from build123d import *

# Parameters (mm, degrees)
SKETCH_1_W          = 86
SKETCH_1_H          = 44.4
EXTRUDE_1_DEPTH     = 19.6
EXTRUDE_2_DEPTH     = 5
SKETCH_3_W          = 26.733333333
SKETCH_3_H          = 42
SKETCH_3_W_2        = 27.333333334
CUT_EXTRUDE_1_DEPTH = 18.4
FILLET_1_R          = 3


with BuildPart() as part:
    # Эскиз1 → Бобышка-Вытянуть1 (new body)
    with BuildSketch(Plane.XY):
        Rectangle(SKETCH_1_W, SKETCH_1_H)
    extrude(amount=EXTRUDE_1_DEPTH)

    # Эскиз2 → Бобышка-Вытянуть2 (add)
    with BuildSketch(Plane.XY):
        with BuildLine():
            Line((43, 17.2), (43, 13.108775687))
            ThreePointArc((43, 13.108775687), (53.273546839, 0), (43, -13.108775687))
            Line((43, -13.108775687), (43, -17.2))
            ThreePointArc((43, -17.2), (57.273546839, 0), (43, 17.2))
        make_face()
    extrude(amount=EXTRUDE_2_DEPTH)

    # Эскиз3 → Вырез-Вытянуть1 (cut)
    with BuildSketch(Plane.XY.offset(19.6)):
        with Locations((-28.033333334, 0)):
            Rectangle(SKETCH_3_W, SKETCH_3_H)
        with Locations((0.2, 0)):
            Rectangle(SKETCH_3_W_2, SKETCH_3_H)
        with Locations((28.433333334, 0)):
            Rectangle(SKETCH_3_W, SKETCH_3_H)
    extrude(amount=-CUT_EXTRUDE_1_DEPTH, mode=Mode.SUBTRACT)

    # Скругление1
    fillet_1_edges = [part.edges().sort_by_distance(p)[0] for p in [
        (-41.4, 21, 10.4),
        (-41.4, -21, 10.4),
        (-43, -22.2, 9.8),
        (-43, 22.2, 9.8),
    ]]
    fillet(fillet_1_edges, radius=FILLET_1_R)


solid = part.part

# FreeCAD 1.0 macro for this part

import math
import FreeCAD as App
import Part
import Sketcher
from FreeCAD import Vector


def edges_at(feature, points):
    """Names of the edges that pass closest to the given points."""
    edges = feature.Shape.Edges
    near = lambda p: min(range(len(edges)), key=lambda i: edges[i].distToShape(Part.Vertex(*p))[0])
    return sorted({f"Edge{near(p) + 1}" for p in points})

doc = App.newDocument("Part")
params = doc.addObject("Spreadsheet::Sheet", "Params")
for row, (alias, value) in enumerate([
    ("sketch1_width", "86 mm"),
    ("sketch1_height", "44.4 mm"),
    ("pad1_length", "19.6 mm"),
    ("sketch2_radius", "13.5 mm"),
    ("sketch2_radius2", "17.5 mm"),
    ("pad2_length", "5 mm"),
    ("sketch3_height", "42 mm"),
    ("pocket1_length", "18.4 mm"),
    ("fillet_radius", "3 mm"),
], start=1):
    params.set(f"A{row}", alias)
    params.set(f"B{row}", "=" + value)
    params.setAlias(f"B{row}", alias)

body = doc.addObject("PartDesign::Body", "Body")

sketch1 = doc.addObject("Sketcher::SketchObject", "Sketch")
body.addObject(sketch1)
sketch1.AttachmentSupport = (doc.XY_Plane, [""])
sketch1.MapMode = "FlatFace"
sketch1.addGeometry(Part.LineSegment(Vector(-43, 22.2, 0), Vector(-43, -22.2, 0)), False)
sketch1.addGeometry(Part.LineSegment(Vector(-43, -22.2, 0), Vector(43, -22.2, 0)), False)
sketch1.addGeometry(Part.LineSegment(Vector(43, -22.2, 0), Vector(43, 22.2, 0)), False)
sketch1.addGeometry(Part.LineSegment(Vector(43, 22.2, 0), Vector(-43, 22.2, 0)), False)
sketch1.addConstraint(Sketcher.Constraint("Coincident", 0, 2, 1, 1))
sketch1.addConstraint(Sketcher.Constraint("Coincident", 1, 2, 2, 1))
sketch1.addConstraint(Sketcher.Constraint("Coincident", 2, 2, 3, 1))
sketch1.addConstraint(Sketcher.Constraint("Coincident", 3, 2, 0, 1))
sketch1.addConstraint(Sketcher.Constraint("Vertical", 0))
sketch1.addConstraint(Sketcher.Constraint("Horizontal", 1))
sketch1.addConstraint(Sketcher.Constraint("Vertical", 2))
sketch1.addConstraint(Sketcher.Constraint("Horizontal", 3))
sketch1.addConstraint(Sketcher.Constraint("Symmetric", 0, 2, 2, 2, -1, 1))
sketch1.addConstraint(Sketcher.Constraint("DistanceX", 1, 1, 1, 2, 86.0))
sketch1.addConstraint(Sketcher.Constraint("DistanceY", 0, 2, 0, 1, 44.4))
sketch1.setExpression("Constraints[9]", "Params.sketch1_width")
sketch1.setExpression("Constraints[10]", "Params.sketch1_height")
pad1 = doc.addObject("PartDesign::Pad", "Pad")
body.addObject(pad1)
pad1.Profile = sketch1
pad1.setExpression("Length", "Params.pad1_length")

sketch2 = doc.addObject("Sketcher::SketchObject", "Sketch001")
body.addObject(sketch2)
sketch2.AttachmentSupport = (doc.XY_Plane, [""])
sketch2.MapMode = "FlatFace"
sketch2.addGeometry(Part.LineSegment(Vector(43, 17.2, 0), Vector(43, 13.108776, 0)), False)
sketch2.addGeometry(Part.ArcOfCircle(Part.Circle(Vector(39.773547, 0, 0), Vector(0, 0, 1), 13.5), math.radians(-76.172678), math.radians(76.172678)), False)
sketch2.addGeometry(Part.LineSegment(Vector(43, -13.108776, 0), Vector(43, -17.2, 0)), False)
sketch2.addGeometry(Part.ArcOfCircle(Part.Circle(Vector(39.773547, 0, 0), Vector(0, 0, 1), 17.5), math.radians(-79.375668), math.radians(79.375668)), False)
sketch2.addConstraint(Sketcher.Constraint("Coincident", 0, 2, 1, 2))
sketch2.addConstraint(Sketcher.Constraint("Coincident", 1, 1, 2, 1))
sketch2.addConstraint(Sketcher.Constraint("Coincident", 2, 2, 3, 1))
sketch2.addConstraint(Sketcher.Constraint("Coincident", 3, 2, 0, 1))
sketch2.addConstraint(Sketcher.Constraint("Vertical", 0))
sketch2.addConstraint(Sketcher.Constraint("Vertical", 2))
sketch2.addConstraint(Sketcher.Constraint("Coincident", 3, 3, 1, 3))
sketch2.addConstraint(Sketcher.Constraint("Symmetric", 0, 2, 1, 1, -1))
sketch2.addConstraint(Sketcher.Constraint("Radius", 1, 13.5))
sketch2.addConstraint(Sketcher.Constraint("Radius", 3, 17.5))
sketch2.addConstraint(Sketcher.Constraint("DistanceX", -1, 1, 0, 2, 43.0))
sketch2.addConstraint(Sketcher.Constraint("DistanceY", 2, 2, -1, 1, 17.2))
sketch2.setExpression("Constraints[8]", "Params.sketch2_radius")
sketch2.setExpression("Constraints[9]", "Params.sketch2_radius2")
pad2 = doc.addObject("PartDesign::Pad", "Pad001")
body.addObject(pad2)
pad2.Profile = sketch2
pad2.setExpression("Length", "Params.pad2_length")

sketch3 = doc.addObject("Sketcher::SketchObject", "Sketch002")
body.addObject(sketch3)
sketch3.AttachmentSupport = (doc.XY_Plane, [""])
sketch3.MapMode = "FlatFace"
sketch3.AttachmentOffset = App.Placement(Vector(0, 0, 19.6), App.Rotation())
sketch3.addGeometry(Part.LineSegment(Vector(-41.4, 21, 0), Vector(-41.4, -21, 0)), False)
sketch3.addGeometry(Part.LineSegment(Vector(-41.4, -21, 0), Vector(-14.666667, -21, 0)), False)
sketch3.addGeometry(Part.LineSegment(Vector(-14.666667, -21, 0), Vector(-14.666667, 21, 0)), False)
sketch3.addGeometry(Part.LineSegment(Vector(-14.666667, 21, 0), Vector(-41.4, 21, 0)), False)
sketch3.addGeometry(Part.LineSegment(Vector(-13.466667, 21, 0), Vector(-13.466667, -21, 0)), False)
sketch3.addGeometry(Part.LineSegment(Vector(-13.466667, -21, 0), Vector(13.866667, -21, 0)), False)
sketch3.addGeometry(Part.LineSegment(Vector(13.866667, -21, 0), Vector(13.866667, 21, 0)), False)
sketch3.addGeometry(Part.LineSegment(Vector(13.866667, 21, 0), Vector(-13.466667, 21, 0)), False)
sketch3.addGeometry(Part.LineSegment(Vector(15.066667, 21, 0), Vector(15.066667, -21, 0)), False)
sketch3.addGeometry(Part.LineSegment(Vector(15.066667, -21, 0), Vector(41.8, -21, 0)), False)
sketch3.addGeometry(Part.LineSegment(Vector(41.8, -21, 0), Vector(41.8, 21, 0)), False)
sketch3.addGeometry(Part.LineSegment(Vector(41.8, 21, 0), Vector(15.066667, 21, 0)), False)
sketch3.addConstraint(Sketcher.Constraint("Coincident", 0, 2, 1, 1))
sketch3.addConstraint(Sketcher.Constraint("Coincident", 1, 2, 2, 1))
sketch3.addConstraint(Sketcher.Constraint("Coincident", 2, 2, 3, 1))
sketch3.addConstraint(Sketcher.Constraint("Coincident", 3, 2, 0, 1))
sketch3.addConstraint(Sketcher.Constraint("Coincident", 4, 2, 5, 1))
sketch3.addConstraint(Sketcher.Constraint("Coincident", 5, 2, 6, 1))
sketch3.addConstraint(Sketcher.Constraint("Coincident", 6, 2, 7, 1))
sketch3.addConstraint(Sketcher.Constraint("Coincident", 7, 2, 4, 1))
sketch3.addConstraint(Sketcher.Constraint("Coincident", 8, 2, 9, 1))
sketch3.addConstraint(Sketcher.Constraint("Coincident", 9, 2, 10, 1))
sketch3.addConstraint(Sketcher.Constraint("Coincident", 10, 2, 11, 1))
sketch3.addConstraint(Sketcher.Constraint("Coincident", 11, 2, 8, 1))
sketch3.addConstraint(Sketcher.Constraint("Vertical", 0))
sketch3.addConstraint(Sketcher.Constraint("Horizontal", 1))
sketch3.addConstraint(Sketcher.Constraint("Vertical", 2))
sketch3.addConstraint(Sketcher.Constraint("Horizontal", 3))
sketch3.addConstraint(Sketcher.Constraint("Vertical", 4))
sketch3.addConstraint(Sketcher.Constraint("Horizontal", 5))
sketch3.addConstraint(Sketcher.Constraint("Vertical", 6))
sketch3.addConstraint(Sketcher.Constraint("Horizontal", 7))
sketch3.addConstraint(Sketcher.Constraint("Vertical", 8))
sketch3.addConstraint(Sketcher.Constraint("Horizontal", 9))
sketch3.addConstraint(Sketcher.Constraint("Vertical", 10))
sketch3.addConstraint(Sketcher.Constraint("Horizontal", 11))
sketch3.addConstraint(Sketcher.Constraint("Horizontal", 1, 2, 4, 2))
sketch3.addConstraint(Sketcher.Constraint("Horizontal", 3, 2, 6, 2))
sketch3.addConstraint(Sketcher.Constraint("Horizontal", 5, 2, 8, 2))
sketch3.addConstraint(Sketcher.Constraint("Horizontal", 7, 2, 10, 2))
sketch3.addConstraint(Sketcher.Constraint("Equal", 3, 9))
sketch3.addConstraint(Sketcher.Constraint("DistanceY", 0, 2, 0, 1, 42.0))
sketch3.addConstraint(Sketcher.Constraint("DistanceY", 0, 2, -1, 1, 21.0))
sketch3.addConstraint(Sketcher.Constraint("DistanceX", 0, 2, -1, 1, 41.4))
sketch3.addConstraint(Sketcher.Constraint("DistanceX", -1, 1, 9, 2, 41.8))
sketch3.addConstraint(Sketcher.Constraint("DistanceX", 1, 2, 4, 2, 1.2))
sketch3.addConstraint(Sketcher.Constraint("DistanceX", 5, 2, 8, 2, 1.2))
sketch3.addConstraint(Sketcher.Constraint("DistanceX", 1, 1, 1, 2, 26.733333))
sketch3.setExpression("Constraints[29]", "Params.sketch3_height")
pocket1 = doc.addObject("PartDesign::Pocket", "Pocket")
body.addObject(pocket1)
pocket1.Profile = sketch3
pocket1.setExpression("Length", "Params.pocket1_length")
doc.recompute()

fillet = doc.addObject("PartDesign::Fillet", "Fillet")
body.addObject(fillet)
fillet.Base = (pocket1, edges_at(pocket1, [
    (-41.4, 21, 10.4),
    (-41.4, -21, 10.4),
    (-43, -22.2, 9.8),
    (-43, 22.2, 9.8),
]))
fillet.setExpression("Radius", "Params.fillet_radius")

doc.recompute()
